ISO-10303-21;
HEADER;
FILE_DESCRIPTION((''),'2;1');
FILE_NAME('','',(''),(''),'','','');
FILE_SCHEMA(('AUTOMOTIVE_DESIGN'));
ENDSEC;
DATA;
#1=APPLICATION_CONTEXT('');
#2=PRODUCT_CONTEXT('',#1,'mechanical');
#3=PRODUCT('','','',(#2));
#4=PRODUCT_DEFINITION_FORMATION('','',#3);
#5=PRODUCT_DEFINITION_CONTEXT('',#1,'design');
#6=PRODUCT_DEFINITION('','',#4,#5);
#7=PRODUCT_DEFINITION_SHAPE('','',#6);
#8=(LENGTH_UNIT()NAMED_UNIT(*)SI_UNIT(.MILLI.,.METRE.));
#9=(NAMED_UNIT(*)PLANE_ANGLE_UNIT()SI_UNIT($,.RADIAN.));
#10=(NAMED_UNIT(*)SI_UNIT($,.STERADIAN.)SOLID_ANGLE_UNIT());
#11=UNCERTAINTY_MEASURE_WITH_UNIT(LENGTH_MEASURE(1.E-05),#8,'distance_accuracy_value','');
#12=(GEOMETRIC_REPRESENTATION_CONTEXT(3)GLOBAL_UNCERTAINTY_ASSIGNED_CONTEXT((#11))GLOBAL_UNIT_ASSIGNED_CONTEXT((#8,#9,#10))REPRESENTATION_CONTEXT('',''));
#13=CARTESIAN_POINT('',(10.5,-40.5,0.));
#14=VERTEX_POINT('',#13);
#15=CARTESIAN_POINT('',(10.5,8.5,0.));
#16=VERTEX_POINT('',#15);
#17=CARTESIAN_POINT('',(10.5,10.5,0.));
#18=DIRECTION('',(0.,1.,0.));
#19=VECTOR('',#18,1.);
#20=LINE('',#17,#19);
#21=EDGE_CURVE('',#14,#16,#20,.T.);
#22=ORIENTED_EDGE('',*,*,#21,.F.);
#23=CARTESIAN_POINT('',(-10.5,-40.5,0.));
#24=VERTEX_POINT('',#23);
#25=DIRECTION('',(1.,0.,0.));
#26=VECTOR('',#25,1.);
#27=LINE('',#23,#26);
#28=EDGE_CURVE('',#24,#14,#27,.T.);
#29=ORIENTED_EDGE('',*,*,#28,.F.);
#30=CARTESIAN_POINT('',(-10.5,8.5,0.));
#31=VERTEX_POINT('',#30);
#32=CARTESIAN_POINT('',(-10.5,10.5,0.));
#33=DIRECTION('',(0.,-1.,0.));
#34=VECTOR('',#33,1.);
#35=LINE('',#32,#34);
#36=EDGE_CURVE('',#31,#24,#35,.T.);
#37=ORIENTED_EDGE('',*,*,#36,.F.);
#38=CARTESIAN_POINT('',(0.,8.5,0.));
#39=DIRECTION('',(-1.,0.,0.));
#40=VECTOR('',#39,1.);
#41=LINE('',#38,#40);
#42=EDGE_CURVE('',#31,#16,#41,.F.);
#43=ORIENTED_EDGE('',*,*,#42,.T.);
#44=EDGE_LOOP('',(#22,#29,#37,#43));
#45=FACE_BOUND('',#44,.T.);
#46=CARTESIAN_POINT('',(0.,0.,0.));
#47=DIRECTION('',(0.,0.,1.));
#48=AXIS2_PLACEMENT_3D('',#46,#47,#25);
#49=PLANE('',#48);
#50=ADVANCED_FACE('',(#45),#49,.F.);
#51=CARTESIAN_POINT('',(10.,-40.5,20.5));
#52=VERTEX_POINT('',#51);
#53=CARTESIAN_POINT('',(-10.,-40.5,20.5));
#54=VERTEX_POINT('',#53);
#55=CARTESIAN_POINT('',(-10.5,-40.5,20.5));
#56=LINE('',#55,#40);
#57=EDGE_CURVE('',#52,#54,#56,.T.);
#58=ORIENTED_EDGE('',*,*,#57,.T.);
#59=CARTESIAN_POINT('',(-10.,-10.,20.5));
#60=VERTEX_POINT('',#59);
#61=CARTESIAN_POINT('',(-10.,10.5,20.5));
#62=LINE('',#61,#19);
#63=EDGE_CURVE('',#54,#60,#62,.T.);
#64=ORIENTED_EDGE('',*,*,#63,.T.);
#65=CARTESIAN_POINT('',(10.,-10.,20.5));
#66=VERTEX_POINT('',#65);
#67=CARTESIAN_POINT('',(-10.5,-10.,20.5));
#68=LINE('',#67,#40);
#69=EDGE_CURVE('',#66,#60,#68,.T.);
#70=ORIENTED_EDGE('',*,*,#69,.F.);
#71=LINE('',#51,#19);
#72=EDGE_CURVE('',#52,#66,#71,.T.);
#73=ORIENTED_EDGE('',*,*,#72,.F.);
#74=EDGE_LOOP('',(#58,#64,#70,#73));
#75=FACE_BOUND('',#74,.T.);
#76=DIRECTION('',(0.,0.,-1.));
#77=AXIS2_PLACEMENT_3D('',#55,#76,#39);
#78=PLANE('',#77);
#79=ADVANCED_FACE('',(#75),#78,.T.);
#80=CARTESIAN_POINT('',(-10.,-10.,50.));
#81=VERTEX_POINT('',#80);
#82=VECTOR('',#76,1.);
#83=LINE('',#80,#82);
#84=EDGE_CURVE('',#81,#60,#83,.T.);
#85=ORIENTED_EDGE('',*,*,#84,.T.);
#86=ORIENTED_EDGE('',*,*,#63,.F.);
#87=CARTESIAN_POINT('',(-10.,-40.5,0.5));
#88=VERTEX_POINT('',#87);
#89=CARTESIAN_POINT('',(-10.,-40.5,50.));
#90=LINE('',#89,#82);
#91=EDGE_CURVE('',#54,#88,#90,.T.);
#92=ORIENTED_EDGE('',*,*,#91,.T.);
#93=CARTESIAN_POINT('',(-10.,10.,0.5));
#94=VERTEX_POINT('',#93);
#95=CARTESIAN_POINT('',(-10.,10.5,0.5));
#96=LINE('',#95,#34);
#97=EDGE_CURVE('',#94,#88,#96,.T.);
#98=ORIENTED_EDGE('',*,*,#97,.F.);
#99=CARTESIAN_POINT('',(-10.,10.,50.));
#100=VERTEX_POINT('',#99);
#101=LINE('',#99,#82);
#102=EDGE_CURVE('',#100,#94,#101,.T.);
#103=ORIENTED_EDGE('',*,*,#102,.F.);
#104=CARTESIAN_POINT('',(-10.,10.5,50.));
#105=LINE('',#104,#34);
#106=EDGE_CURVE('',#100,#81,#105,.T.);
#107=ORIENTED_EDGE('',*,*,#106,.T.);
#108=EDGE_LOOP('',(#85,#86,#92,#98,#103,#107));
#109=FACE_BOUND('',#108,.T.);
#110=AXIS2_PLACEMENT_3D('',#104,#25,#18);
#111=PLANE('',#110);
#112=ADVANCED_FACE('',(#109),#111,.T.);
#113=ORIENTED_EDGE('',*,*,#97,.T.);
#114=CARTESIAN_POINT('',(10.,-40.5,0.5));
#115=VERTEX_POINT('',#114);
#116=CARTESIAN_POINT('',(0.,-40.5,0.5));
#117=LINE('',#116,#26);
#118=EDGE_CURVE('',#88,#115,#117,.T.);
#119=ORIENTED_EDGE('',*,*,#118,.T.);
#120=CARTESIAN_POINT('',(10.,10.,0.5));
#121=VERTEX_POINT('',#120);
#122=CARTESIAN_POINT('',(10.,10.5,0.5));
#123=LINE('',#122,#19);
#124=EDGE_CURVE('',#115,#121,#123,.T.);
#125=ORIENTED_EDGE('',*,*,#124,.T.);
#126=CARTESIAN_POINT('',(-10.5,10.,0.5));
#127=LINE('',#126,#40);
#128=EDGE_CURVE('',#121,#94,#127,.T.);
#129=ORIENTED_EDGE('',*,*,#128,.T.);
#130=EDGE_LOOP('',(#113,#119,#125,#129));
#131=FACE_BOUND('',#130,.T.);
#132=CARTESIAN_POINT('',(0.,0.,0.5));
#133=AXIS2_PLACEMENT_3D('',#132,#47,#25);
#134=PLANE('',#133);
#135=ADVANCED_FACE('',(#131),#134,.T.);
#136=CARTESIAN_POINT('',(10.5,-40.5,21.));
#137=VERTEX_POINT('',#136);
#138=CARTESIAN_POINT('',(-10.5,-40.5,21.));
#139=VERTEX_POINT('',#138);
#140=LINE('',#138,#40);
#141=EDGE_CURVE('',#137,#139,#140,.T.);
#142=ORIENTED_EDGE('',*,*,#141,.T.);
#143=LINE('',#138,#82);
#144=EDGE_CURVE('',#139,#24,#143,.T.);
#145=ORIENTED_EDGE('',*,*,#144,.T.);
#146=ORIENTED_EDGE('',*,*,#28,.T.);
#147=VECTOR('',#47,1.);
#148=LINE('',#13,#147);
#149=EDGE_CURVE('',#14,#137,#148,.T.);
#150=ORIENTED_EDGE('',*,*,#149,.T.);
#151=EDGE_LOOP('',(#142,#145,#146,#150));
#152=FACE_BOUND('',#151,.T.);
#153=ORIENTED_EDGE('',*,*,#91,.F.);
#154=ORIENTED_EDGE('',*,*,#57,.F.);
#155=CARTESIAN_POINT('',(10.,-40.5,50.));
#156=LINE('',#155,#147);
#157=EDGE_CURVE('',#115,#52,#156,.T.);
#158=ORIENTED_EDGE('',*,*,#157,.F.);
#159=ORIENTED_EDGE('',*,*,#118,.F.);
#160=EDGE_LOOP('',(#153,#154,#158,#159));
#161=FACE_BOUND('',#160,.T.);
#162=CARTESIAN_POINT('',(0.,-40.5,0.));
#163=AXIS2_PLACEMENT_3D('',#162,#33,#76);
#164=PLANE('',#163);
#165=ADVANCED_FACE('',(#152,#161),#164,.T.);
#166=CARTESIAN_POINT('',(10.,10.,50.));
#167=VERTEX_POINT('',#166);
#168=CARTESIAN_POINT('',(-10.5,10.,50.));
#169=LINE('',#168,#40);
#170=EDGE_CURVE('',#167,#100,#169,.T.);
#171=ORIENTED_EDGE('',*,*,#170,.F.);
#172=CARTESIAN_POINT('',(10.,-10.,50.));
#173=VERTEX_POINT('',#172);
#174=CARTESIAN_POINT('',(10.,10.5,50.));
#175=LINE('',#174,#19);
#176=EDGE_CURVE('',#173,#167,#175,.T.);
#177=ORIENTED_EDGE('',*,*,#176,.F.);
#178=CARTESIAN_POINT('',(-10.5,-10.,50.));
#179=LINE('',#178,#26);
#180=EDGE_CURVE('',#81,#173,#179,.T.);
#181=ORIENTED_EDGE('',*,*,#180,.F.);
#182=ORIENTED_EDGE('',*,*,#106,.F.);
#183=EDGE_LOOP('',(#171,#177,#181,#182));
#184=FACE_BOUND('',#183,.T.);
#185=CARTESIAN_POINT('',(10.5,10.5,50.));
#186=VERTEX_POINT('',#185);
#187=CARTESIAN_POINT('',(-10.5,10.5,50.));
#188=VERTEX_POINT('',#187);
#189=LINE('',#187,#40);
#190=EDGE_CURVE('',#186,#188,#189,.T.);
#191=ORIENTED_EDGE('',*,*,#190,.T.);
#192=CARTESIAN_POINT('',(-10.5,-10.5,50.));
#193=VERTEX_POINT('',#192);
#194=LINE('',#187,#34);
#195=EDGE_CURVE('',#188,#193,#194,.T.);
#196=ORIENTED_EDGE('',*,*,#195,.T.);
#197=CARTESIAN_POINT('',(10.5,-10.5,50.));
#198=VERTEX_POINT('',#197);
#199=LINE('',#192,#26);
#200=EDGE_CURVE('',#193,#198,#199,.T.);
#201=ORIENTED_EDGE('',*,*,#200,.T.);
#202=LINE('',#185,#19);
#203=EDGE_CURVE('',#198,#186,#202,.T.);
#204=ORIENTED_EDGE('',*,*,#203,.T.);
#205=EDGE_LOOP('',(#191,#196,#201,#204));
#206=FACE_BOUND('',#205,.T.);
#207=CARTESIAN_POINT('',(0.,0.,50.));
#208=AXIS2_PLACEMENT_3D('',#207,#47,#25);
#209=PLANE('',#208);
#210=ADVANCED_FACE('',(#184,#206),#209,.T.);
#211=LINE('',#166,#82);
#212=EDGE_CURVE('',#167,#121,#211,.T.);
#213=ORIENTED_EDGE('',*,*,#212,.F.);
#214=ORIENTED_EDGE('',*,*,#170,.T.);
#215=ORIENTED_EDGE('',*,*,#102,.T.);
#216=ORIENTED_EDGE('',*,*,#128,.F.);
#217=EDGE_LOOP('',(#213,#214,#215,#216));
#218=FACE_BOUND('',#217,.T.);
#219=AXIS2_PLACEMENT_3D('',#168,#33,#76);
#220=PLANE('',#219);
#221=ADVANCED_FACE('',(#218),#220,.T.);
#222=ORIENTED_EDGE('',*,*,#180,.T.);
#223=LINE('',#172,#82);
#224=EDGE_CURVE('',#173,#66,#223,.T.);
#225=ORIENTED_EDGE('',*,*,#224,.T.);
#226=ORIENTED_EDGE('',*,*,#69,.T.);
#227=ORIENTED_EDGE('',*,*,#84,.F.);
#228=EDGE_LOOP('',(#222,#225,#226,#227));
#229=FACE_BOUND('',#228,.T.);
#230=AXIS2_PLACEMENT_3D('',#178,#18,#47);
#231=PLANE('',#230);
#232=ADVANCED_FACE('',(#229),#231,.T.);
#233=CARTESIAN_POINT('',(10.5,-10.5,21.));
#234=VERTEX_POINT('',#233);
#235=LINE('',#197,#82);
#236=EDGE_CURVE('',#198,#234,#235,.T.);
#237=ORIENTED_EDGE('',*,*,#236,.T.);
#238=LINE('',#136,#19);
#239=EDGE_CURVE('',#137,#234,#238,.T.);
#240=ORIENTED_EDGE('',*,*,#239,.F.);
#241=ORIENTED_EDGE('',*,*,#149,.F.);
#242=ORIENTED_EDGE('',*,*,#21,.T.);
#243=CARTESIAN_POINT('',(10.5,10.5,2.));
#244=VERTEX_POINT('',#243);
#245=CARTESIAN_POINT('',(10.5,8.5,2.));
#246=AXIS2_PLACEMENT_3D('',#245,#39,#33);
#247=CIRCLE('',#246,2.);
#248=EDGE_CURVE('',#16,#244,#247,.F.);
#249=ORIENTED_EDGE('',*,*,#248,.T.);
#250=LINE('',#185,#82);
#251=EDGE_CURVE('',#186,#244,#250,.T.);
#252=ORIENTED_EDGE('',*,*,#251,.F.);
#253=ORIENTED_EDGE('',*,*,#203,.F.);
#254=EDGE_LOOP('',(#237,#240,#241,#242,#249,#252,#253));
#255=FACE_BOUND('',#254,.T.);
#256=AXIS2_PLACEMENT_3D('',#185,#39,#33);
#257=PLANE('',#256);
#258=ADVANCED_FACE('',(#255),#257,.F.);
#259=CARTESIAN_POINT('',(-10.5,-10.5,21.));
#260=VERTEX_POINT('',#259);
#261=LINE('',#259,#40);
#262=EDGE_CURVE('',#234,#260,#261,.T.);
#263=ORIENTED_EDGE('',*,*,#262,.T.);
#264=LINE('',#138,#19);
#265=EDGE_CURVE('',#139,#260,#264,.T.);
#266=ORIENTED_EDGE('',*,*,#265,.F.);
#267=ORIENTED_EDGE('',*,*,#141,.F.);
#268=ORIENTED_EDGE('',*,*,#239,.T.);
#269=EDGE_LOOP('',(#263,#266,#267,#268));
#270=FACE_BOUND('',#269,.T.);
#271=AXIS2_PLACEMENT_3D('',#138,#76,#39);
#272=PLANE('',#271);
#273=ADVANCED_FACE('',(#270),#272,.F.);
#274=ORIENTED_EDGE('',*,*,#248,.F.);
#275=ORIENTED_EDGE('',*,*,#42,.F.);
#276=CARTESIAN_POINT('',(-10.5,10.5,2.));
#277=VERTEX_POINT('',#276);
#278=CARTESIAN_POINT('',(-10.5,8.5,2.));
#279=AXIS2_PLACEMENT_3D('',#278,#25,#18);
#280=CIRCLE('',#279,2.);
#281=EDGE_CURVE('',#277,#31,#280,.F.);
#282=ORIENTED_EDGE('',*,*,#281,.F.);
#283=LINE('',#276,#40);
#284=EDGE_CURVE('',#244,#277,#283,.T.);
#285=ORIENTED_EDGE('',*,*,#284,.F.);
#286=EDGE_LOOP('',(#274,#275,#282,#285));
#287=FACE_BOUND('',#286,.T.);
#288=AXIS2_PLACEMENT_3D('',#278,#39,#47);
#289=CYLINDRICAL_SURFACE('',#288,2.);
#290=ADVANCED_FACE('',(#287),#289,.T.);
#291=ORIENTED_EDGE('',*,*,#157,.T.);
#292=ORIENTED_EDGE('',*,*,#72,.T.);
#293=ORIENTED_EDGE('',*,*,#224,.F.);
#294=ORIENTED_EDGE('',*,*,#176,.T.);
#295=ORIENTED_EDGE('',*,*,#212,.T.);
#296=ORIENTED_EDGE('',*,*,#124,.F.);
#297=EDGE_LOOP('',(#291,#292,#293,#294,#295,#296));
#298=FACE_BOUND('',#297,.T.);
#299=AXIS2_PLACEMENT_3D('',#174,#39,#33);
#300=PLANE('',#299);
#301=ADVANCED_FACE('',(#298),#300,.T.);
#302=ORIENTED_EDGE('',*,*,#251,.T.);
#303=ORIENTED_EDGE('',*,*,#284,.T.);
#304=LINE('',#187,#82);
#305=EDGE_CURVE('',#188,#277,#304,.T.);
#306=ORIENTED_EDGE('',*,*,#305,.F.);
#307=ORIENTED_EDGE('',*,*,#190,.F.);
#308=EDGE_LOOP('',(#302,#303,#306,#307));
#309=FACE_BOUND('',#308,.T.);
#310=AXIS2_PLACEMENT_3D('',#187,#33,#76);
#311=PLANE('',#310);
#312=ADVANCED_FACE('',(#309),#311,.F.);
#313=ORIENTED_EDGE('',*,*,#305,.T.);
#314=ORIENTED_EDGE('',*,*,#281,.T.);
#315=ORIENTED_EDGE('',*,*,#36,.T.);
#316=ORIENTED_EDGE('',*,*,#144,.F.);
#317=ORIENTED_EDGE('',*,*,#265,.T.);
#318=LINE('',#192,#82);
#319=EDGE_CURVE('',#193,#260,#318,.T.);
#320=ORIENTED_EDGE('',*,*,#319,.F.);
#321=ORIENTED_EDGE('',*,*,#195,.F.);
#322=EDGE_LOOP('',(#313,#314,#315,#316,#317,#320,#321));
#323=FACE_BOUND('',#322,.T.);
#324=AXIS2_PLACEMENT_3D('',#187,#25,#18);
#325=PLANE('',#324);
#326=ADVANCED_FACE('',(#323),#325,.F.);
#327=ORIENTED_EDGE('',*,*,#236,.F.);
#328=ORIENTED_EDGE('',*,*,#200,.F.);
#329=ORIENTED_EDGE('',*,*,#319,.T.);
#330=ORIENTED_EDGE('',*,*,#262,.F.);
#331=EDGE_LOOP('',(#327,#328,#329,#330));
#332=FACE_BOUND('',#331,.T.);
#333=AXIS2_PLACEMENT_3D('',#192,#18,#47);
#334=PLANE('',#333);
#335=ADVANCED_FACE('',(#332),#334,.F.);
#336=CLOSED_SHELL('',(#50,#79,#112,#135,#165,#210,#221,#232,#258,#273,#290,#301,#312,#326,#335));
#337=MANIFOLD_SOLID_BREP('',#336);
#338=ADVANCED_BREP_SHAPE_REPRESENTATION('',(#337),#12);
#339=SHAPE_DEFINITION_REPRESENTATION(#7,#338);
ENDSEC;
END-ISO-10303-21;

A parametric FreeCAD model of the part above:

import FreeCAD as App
import Part
import Sketcher
Q = App.Units.Quantity


def edges_at(feature, points):
    """Names of the edges that pass closest to the given points."""
    edges = feature.Shape.Edges
    near = lambda p: min(range(len(edges)), key=lambda i: edges[i].distToShape(Part.Vertex(*p))[0])
    return sorted({f"Edge{near(p) + 1}" for p in points})


def faces_at(feature, points):
    """Names of the faces that lie closest to the given points."""
    faces = feature.Shape.Faces
    near = lambda p: min(range(len(faces)), key=lambda i: faces[i].distToShape(Part.Vertex(*p))[0])
    return sorted({f"Face{near(p) + 1}" for p in points})


def add_polygon(sketch, points):
    """Adds a closed chain of lines whose ends are joined by coincident constraints."""
    first, n = sketch.GeometryCount, len(points)
    for a, b in zip(points, points[1:] + points[:1]):
        sketch.addGeometry(Part.LineSegment(App.Vector(*a, 0), App.Vector(*b, 0)), False)
    for i in range(n):
        sketch.addConstraint(Sketcher.Constraint("Coincident", first + i, 2, first + (i + 1) % n, 1))

doc = App.newDocument("Part")
params = doc.addObject("Spreadsheet::Sheet", "Params")
for row, (alias, value) in enumerate([
    ("sketch1_width", "21 mm"),
    ("pad1_length", "50 mm"),
    ("sketch2_width", "21 mm"),
    ("pad2_length", "30 mm"),
    ("thickness_wall", "0.5 mm"),
    ("fillet_radius", "2 mm"),
], start=1):
    params.set(f"A{row}", alias)
    params.set(f"B{row}", "=" + value)
    params.setAlias(f"B{row}", alias)

body = doc.addObject("PartDesign::Body", "Body")

# Sketch on XY plane
sketch1 = doc.addObject("Sketcher::SketchObject", "Sketch")
body.addObject(sketch1)
sketch1.AttachmentSupport = (doc.XY_Plane, [""])
sketch1.MapMode = "FlatFace"
add_polygon(sketch1, [(-10, 10), (-10, -10), (10, -10), (10, 10)])  # lines 0-3
sketch1.addConstraint([
    Sketcher.Constraint("Vertical", 0),
    Sketcher.Constraint("Horizontal", 1),
    Sketcher.Constraint("Vertical", 2),
    Sketcher.Constraint("Horizontal", 3),
    Sketcher.Constraint("Symmetric", 0, 2, 2, 2, -1, 1),
    Sketcher.Constraint("Equal", 3, 0),
    Sketcher.Constraint("DistanceX", 1, 1, 1, 2, Q("21 mm")),
])
sketch1.setExpression("Constraints[10]", "Params.sketch1_width")
pad1 = doc.addObject("PartDesign::Pad", "Pad")
body.addObject(pad1)
pad1.Profile = sketch1
pad1.setExpression("Length", "Params.pad1_length")

# Sketch on XZ plane
sketch2 = doc.addObject("Sketcher::SketchObject", "Sketch001")
body.addObject(sketch2)
sketch2.AttachmentSupport = (doc.XZ_Plane, [""])
sketch2.MapMode = "FlatFace"
sketch2.AttachmentOffset = App.Placement(App.Vector(0, 0, 10.5), App.Rotation())
add_polygon(sketch2, [(-10, 21), (-10, 0), (10, 0), (10, 21)])  # lines 0-3
sketch2.addConstraint([
    Sketcher.Constraint("Vertical", 0),
    Sketcher.Constraint("Horizontal", 1),
    Sketcher.Constraint("Vertical", 2),
    Sketcher.Constraint("Horizontal", 3),
    Sketcher.Constraint("Symmetric", 0, 2, 1, 2, -1, 1),
    Sketcher.Constraint("Equal", 3, 0),
    Sketcher.Constraint("DistanceX", 1, 1, 1, 2, Q("21 mm")),
])
sketch2.setExpression("Constraints[10]", "Params.sketch2_width")
pad2 = doc.addObject("PartDesign::Pad", "Pad001")
body.addObject(pad2)
pad2.Profile = sketch2
pad2.setExpression("Length", "Params.pad2_length")
doc.recompute()

thickness = doc.addObject("PartDesign::Thickness", "Thickness")
body.addObject(thickness)
thickness.Base = (pad2, faces_at(pad2, [(0, 0, 50), (0, -40.5, 10.5)]))
thickness.setExpression("Value", "Params.thickness_wall")
thickness.Reversed = True
thickness.Join = "Intersection"
doc.recompute()

fillet = doc.addObject("PartDesign::Fillet", "Fillet")
body.addObject(fillet)
fillet.Base = (thickness, edges_at(thickness, [(0, 10.5, 0)]))
fillet.setExpression("Radius", "Params.fillet_radius")

doc.recompute()
